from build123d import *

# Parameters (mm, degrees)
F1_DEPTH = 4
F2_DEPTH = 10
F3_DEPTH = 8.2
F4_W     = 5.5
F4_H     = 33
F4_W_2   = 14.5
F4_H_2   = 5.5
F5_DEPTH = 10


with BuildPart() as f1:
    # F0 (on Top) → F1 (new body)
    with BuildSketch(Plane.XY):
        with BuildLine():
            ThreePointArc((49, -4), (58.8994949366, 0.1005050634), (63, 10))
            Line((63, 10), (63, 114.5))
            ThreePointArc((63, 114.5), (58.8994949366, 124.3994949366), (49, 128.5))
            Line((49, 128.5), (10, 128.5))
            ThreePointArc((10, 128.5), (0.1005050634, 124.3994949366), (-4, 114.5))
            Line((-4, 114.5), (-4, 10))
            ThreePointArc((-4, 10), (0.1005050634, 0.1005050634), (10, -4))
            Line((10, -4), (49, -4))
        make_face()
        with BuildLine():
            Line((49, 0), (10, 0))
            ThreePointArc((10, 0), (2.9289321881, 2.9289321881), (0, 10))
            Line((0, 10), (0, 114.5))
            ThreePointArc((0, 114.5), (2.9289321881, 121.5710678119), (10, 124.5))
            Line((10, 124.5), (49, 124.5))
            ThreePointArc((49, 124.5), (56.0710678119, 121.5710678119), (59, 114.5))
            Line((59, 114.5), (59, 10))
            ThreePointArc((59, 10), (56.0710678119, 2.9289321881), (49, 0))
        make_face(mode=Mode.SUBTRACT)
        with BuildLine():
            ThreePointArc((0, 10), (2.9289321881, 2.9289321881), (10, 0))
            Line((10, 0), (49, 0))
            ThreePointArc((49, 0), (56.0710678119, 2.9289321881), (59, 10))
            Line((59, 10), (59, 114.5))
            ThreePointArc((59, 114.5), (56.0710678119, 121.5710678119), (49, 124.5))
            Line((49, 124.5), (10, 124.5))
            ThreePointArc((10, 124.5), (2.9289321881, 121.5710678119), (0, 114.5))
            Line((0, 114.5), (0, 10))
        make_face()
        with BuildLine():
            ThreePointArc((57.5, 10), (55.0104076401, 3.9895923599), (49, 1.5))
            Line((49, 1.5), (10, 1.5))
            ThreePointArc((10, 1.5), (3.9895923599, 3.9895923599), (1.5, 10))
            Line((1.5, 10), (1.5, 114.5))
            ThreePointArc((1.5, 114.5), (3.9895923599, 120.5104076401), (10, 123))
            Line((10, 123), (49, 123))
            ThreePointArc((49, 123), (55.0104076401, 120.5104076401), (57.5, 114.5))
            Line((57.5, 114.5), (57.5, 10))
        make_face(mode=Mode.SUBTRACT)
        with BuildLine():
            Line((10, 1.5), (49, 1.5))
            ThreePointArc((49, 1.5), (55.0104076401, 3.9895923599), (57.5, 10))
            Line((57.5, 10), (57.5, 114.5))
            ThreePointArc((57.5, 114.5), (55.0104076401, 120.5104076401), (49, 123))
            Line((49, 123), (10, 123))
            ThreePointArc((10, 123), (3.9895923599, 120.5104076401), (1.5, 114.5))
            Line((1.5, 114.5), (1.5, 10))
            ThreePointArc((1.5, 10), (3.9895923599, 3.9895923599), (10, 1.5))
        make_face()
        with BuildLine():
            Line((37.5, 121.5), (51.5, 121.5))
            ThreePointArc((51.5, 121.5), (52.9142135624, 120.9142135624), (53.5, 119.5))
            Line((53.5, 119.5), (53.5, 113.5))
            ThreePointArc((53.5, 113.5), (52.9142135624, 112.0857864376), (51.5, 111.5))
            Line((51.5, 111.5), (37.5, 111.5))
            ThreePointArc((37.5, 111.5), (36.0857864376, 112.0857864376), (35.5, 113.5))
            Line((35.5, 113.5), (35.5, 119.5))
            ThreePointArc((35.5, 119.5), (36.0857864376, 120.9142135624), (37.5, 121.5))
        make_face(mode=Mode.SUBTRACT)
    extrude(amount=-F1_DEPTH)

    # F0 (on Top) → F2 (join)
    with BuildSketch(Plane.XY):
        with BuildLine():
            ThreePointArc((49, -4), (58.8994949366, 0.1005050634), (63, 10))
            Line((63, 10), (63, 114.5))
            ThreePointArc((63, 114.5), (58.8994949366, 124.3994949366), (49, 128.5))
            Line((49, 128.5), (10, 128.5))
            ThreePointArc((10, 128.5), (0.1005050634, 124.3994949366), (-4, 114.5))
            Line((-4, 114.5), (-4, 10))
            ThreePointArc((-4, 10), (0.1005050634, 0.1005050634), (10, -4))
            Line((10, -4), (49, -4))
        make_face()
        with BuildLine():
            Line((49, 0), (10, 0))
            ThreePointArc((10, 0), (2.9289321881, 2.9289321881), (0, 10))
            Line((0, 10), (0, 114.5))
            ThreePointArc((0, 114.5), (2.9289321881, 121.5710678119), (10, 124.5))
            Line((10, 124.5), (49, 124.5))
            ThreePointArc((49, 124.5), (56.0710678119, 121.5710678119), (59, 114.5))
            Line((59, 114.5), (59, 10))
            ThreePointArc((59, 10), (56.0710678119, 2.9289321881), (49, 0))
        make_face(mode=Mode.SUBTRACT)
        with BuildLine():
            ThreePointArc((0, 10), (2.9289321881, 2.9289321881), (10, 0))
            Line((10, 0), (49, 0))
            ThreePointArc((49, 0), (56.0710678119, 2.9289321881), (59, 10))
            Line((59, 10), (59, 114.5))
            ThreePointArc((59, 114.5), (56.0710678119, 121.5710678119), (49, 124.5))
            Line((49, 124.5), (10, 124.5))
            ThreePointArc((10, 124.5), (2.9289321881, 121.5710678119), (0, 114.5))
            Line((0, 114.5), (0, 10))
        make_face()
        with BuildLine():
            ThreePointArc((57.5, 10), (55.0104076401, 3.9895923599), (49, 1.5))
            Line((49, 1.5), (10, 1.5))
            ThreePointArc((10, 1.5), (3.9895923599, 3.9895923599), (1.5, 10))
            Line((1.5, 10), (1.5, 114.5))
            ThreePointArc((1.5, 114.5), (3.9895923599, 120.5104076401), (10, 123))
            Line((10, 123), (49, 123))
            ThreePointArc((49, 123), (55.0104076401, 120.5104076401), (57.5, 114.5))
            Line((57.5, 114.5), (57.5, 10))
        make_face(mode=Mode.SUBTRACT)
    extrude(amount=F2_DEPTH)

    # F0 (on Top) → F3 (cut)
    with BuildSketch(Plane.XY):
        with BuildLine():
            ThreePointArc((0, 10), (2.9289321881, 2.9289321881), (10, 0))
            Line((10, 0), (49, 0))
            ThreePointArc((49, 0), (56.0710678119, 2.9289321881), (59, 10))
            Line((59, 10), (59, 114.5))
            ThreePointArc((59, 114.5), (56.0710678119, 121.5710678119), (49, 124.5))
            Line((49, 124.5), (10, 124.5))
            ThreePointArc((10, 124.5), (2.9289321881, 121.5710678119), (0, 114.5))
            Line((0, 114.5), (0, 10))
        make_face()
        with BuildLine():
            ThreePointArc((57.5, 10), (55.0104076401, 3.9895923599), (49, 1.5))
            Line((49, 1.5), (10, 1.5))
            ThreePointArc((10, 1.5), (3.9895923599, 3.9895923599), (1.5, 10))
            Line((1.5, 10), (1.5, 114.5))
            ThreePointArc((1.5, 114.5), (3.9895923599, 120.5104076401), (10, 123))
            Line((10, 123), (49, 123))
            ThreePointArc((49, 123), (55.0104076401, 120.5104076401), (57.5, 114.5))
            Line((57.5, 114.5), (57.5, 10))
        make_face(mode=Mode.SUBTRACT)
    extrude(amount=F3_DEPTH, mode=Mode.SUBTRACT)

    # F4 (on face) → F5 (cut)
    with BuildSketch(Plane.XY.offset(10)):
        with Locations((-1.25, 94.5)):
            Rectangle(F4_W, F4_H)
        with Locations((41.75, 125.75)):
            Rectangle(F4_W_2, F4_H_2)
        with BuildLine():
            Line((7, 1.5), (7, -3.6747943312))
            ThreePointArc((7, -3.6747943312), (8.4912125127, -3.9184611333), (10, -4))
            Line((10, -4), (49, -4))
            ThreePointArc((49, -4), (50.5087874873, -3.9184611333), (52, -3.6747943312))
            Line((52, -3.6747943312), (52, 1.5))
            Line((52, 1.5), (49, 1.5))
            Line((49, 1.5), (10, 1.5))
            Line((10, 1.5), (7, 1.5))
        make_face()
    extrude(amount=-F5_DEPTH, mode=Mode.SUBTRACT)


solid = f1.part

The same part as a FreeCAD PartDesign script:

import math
import FreeCAD as App
import Part
import Sketcher

V = App.Vector

doc = App.newDocument("Part")
params = doc.addObject("Spreadsheet::Sheet", "Params")
for row, (alias, value) in enumerate([
    ("sketch1_radius", "14 mm"),
    ("sketch1_radius2", "2 mm"),
    ("sketch1_width", "39 mm"),
    ("sketch1_width2", "14 mm"),
    ("sketch1_height", "6 mm"),
    ("pad1_length", "4 mm"),
    ("sketch2_radius", "14 mm"),
    ("sketch2_radius2", "8.5 mm"),
    ("sketch2_width", "39 mm"),
    ("sketch2_height", "104.5 mm"),
    ("pad2_length", "10 mm"),
    ("sketch3_radius", "10 mm"),
    ("sketch3_radius2", "8.5 mm"),
    ("sketch3_width", "39 mm"),
    ("sketch3_height", "104.5 mm"),
    ("pocket1_length", "8.2 mm"),
    ("sketch4_radius", "14 mm"),
    ("sketch4_width", "39 mm"),
    ("sketch4_width2", "45 mm"),
    ("sketch4_height", "33 mm"),
    ("sketch4_width3", "5.5 mm"),
    ("pocket2_length", "10 mm"),
], start=1):
    params.set(f"A{row}", alias)
    params.set(f"B{row}", "=" + value)
    params.setAlias(f"B{row}", alias)

body = doc.addObject("PartDesign::Body", "Body")

# Sketch on XY plane
sketch1 = doc.addObject("Sketcher::SketchObject", "Sketch")
body.addObject(sketch1)
sketch1.AttachmentSupport = (doc.XY_Plane, [""])
sketch1.MapMode = "FlatFace"
sketch1.addGeometry([
    Part.ArcOfCircle(Part.Circle(V(49, 10, 0), V(0, 0, 1), 14), math.radians(-90), math.radians(0)),  # 0
    Part.LineSegment(V(63, 10, 0), V(63, 114.5, 0)),  # 1
    Part.ArcOfCircle(Part.Circle(V(49, 114.5, 0), V(0, 0, 1), 14), math.radians(0), math.radians(90)),  # 2
    Part.LineSegment(V(49, 128.5, 0), V(10, 128.5, 0)),  # 3
    Part.ArcOfCircle(Part.Circle(V(10, 114.5, 0), V(0, 0, 1), 14), math.radians(90), math.radians(180)),  # 4
    Part.LineSegment(V(-4, 114.5, 0), V(-4, 10, 0)),  # 5
    Part.ArcOfCircle(Part.Circle(V(10, 10, 0), V(0, 0, 1), 14), math.radians(180), math.radians(270)),  # 6
    Part.LineSegment(V(10, -4, 0), V(49, -4, 0)),  # 7
    Part.ArcOfCircle(Part.Circle(V(37.5, 119.5, 0), V(0, 0, 1), 2), math.radians(90), math.radians(180)),  # 8
    Part.LineSegment(V(37.5, 121.5, 0), V(51.5, 121.5, 0)),  # 9
    Part.ArcOfCircle(Part.Circle(V(51.5, 119.5, 0), V(0, 0, 1), 2), math.radians(0), math.radians(90)),  # 10
    Part.LineSegment(V(53.5, 119.5, 0), V(53.5, 113.5, 0)),  # 11
    Part.ArcOfCircle(Part.Circle(V(51.5, 113.5, 0), V(0, 0, 1), 2), math.radians(-90), math.radians(0)),  # 12
    Part.LineSegment(V(51.5, 111.5, 0), V(37.5, 111.5, 0)),  # 13
    Part.ArcOfCircle(Part.Circle(V(37.5, 113.5, 0), V(0, 0, 1), 2), math.radians(180), math.radians(270)),  # 14
    Part.LineSegment(V(35.5, 113.5, 0), V(35.5, 119.5, 0)),  # 15
], False)
sketch1.addConstraint([
    Sketcher.Constraint("Tangent", 0, 2, 1, 1),
    Sketcher.Constraint("Tangent", 1, 2, 2, 1),
    Sketcher.Constraint("Tangent", 2, 2, 3, 1),
    Sketcher.Constraint("Tangent", 3, 2, 4, 1),
    Sketcher.Constraint("Tangent", 4, 2, 5, 1),
    Sketcher.Constraint("Tangent", 5, 2, 6, 1),
    Sketcher.Constraint("Tangent", 6, 2, 7, 1),
    Sketcher.Constraint("Tangent", 7, 2, 0, 1),
    Sketcher.Constraint("Tangent", 8, 1, 9, 1),
    Sketcher.Constraint("Tangent", 9, 2, 10, 2),
    Sketcher.Constraint("Tangent", 10, 1, 11, 1),
    Sketcher.Constraint("Tangent", 11, 2, 12, 2),
    Sketcher.Constraint("Tangent", 12, 1, 13, 1),
    Sketcher.Constraint("Tangent", 13, 2, 14, 2),
    Sketcher.Constraint("Tangent", 14, 1, 15, 1),
    Sketcher.Constraint("Tangent", 15, 2, 8, 2),
    Sketcher.Constraint("Vertical", 1),
    Sketcher.Constraint("Horizontal", 3),
    Sketcher.Constraint("Vertical", 5),
    Sketcher.Constraint("Horizontal", 7),
    Sketcher.Constraint("Horizontal", 9),
    Sketcher.Constraint("Vertical", 11),
    Sketcher.Constraint("Horizontal", 13),
    Sketcher.Constraint("Vertical", 15),
    Sketcher.Constraint("Equal", 0, 2),
    Sketcher.Constraint("Equal", 2, 4),
    Sketcher.Constraint("Equal", 4, 6),
    Sketcher.Constraint("Equal", 8, 10),
    Sketcher.Constraint("Equal", 10, 12),
    Sketcher.Constraint("Equal", 12, 14),
    Sketcher.Constraint("Radius", 0, 14.0),
    Sketcher.Constraint("Radius", 8, 2.0),
    Sketcher.Constraint("DistanceX", 3, 2, 3, 1, 39.0),
    Sketcher.Constraint("DistanceX", 9, 1, 9, 2, 14.0),
    Sketcher.Constraint("DistanceY", 11, 2, 11, 1, 6.0),
    Sketcher.Constraint("DistanceY", 1, 1, 1, 2, 104.5),
    Sketcher.Constraint("DistanceX", -1, 1, 0, 3, 49.0),
    Sketcher.Constraint("DistanceY", -1, 1, 0, 3, 10.0),
    Sketcher.Constraint("DistanceY", 2, 3, 8, 3, 5.0),
    Sketcher.Constraint("DistanceX", -1, 1, 8, 3, 37.5),
])
sketch1.setExpression("Constraints[30]", "Params.sketch1_radius")
sketch1.setExpression("Constraints[31]", "Params.sketch1_radius2")
sketch1.setExpression("Constraints[32]", "Params.sketch1_width")
sketch1.setExpression("Constraints[33]", "Params.sketch1_width2")
sketch1.setExpression("Constraints[34]", "Params.sketch1_height")
pad1 = doc.addObject("PartDesign::Pad", "Pad")
body.addObject(pad1)
pad1.Profile = sketch1
pad1.setExpression("Length", "Params.pad1_length")
pad1.Reversed = True

# Sketch on XY plane
sketch2 = doc.addObject("Sketcher::SketchObject", "Sketch001")
body.addObject(sketch2)
sketch2.AttachmentSupport = (doc.XY_Plane, [""])
sketch2.MapMode = "FlatFace"
sketch2.addGeometry([
    Part.ArcOfCircle(Part.Circle(V(49, 10, 0), V(0, 0, 1), 14), math.radians(-90), math.radians(0)),  # 0
    Part.LineSegment(V(63, 10, 0), V(63, 114, 0)),  # 1
    Part.ArcOfCircle(Part.Circle(V(49, 114, 0), V(0, 0, 1), 14), math.radians(0), math.radians(90)),  # 2
    Part.LineSegment(V(49, 128, 0), V(10, 128, 0)),  # 3
    Part.ArcOfCircle(Part.Circle(V(10, 114, 0), V(0, 0, 1), 14), math.radians(90), math.radians(180)),  # 4
    Part.LineSegment(V(-4, 114, 0), V(-4, 10, 0)),  # 5
    Part.ArcOfCircle(Part.Circle(V(10, 10, 0), V(0, 0, 1), 14), math.radians(180), math.radians(270)),  # 6
    Part.LineSegment(V(10, -4, 0), V(49, -4, 0)),  # 7
    Part.LineSegment(V(58, 114, 0), V(58, 10, 0)),  # 8
    Part.ArcOfCircle(Part.Circle(V(49, 10, 0), V(0, 0, 1), 8), math.radians(-90), math.radians(0)),  # 9
    Part.LineSegment(V(49, 2, 0), V(10, 2, 0)),  # 10
    Part.ArcOfCircle(Part.Circle(V(10, 10, 0), V(0, 0, 1), 8), math.radians(180), math.radians(270)),  # 11
    Part.LineSegment(V(2, 10, 0), V(2, 114, 0)),  # 12
    Part.ArcOfCircle(Part.Circle(V(10, 114, 0), V(0, 0, 1), 8), math.radians(90), math.radians(180)),  # 13
    Part.LineSegment(V(10, 123, 0), V(49, 123, 0)),  # 14
    Part.ArcOfCircle(Part.Circle(V(49, 114, 0), V(0, 0, 1), 8), math.radians(0), math.radians(90)),  # 15
], False)
sketch2.addConstraint([
    Sketcher.Constraint("Tangent", 0, 2, 1, 1),
    Sketcher.Constraint("Tangent", 1, 2, 2, 1),
    Sketcher.Constraint("Tangent", 2, 2, 3, 1),
    Sketcher.Constraint("Tangent", 3, 2, 4, 1),
    Sketcher.Constraint("Tangent", 4, 2, 5, 1),
    Sketcher.Constraint("Tangent", 5, 2, 6, 1),
    Sketcher.Constraint("Tangent", 6, 2, 7, 1),
    Sketcher.Constraint("Tangent", 7, 2, 0, 1),
    Sketcher.Constraint("Tangent", 8, 2, 9, 2),
    Sketcher.Constraint("Tangent", 9, 1, 10, 1),
    Sketcher.Constraint("Tangent", 10, 2, 11, 2),
    Sketcher.Constraint("Tangent", 11, 1, 12, 1),
    Sketcher.Constraint("Tangent", 12, 2, 13, 2),
    Sketcher.Constraint("Tangent", 13, 1, 14, 1),
    Sketcher.Constraint("Tangent", 14, 2, 15, 2),
    Sketcher.Constraint("Tangent", 15, 1, 8, 1),
    Sketcher.Constraint("Vertical", 1),
    Sketcher.Constraint("Horizontal", 3),
    Sketcher.Constraint("Vertical", 5),
    Sketcher.Constraint("Horizontal", 7),
    Sketcher.Constraint("Vertical", 8),
    Sketcher.Constraint("Horizontal", 10),
    Sketcher.Constraint("Vertical", 12),
    Sketcher.Constraint("Horizontal", 14),
    Sketcher.Constraint("Coincident", 9, 3, 0, 3),
    Sketcher.Constraint("Coincident", 11, 3, 6, 3),
    Sketcher.Constraint("Coincident", 13, 3, 4, 3),
    Sketcher.Constraint("Equal", 0, 2),
    Sketcher.Constraint("Equal", 2, 4),
    Sketcher.Constraint("Equal", 4, 6),
    Sketcher.Constraint("Equal", 13, 15),
    Sketcher.Constraint("Radius", 0, 14.0),
    Sketcher.Constraint("Radius", 9, 8.5),
    Sketcher.Constraint("DistanceX", 3, 2, 3, 1, 39.0),
    Sketcher.Constraint("DistanceY", 1, 1, 1, 2, 104.5),
    Sketcher.Constraint("DistanceX", -1, 1, 0, 3, 49.0),
    Sketcher.Constraint("DistanceY", -1, 1, 0, 3, 10.0),
])
sketch2.setExpression("Constraints[31]", "Params.sketch2_radius")
sketch2.setExpression("Constraints[32]", "Params.sketch2_radius2")
sketch2.setExpression("Constraints[33]", "Params.sketch2_width")
sketch2.setExpression("Constraints[34]", "Params.sketch2_height")
pad2 = doc.addObject("PartDesign::Pad", "Pad001")
body.addObject(pad2)
pad2.Profile = sketch2
pad2.setExpression("Length", "Params.pad2_length")

# Sketch on XY plane
sketch3 = doc.addObject("Sketcher::SketchObject", "Sketch002")
body.addObject(sketch3)
sketch3.AttachmentSupport = (doc.XY_Plane, [""])
sketch3.MapMode = "FlatFace"
sketch3.addGeometry([
    Part.ArcOfCircle(Part.Circle(V(10, 10, 0), V(0, 0, 1), 10), math.radians(180), math.radians(270)),  # 0
    Part.LineSegment(V(10, 0, 0), V(49, 0, 0)),  # 1
    Part.ArcOfCircle(Part.Circle(V(49, 10, 0), V(0, 0, 1), 10), math.radians(-90), math.radians(0)),  # 2
    Part.LineSegment(V(59, 10, 0), V(59, 114, 0)),  # 3
    Part.ArcOfCircle(Part.Circle(V(49, 114, 0), V(0, 0, 1), 10), math.radians(0), math.radians(90)),  # 4
    Part.LineSegment(V(49, 124, 0), V(10, 124, 0)),  # 5
    Part.ArcOfCircle(Part.Circle(V(10, 114, 0), V(0, 0, 1), 10), math.radians(90), math.radians(180)),  # 6
    Part.LineSegment(V(0, 114, 0), V(0, 10, 0)),  # 7
    Part.LineSegment(V(58, 114, 0), V(58, 10, 0)),  # 8
    Part.ArcOfCircle(Part.Circle(V(49, 10, 0), V(0, 0, 1), 8), math.radians(-90), math.radians(0)),  # 9
    Part.LineSegment(V(49, 2, 0), V(10, 2, 0)),  # 10
    Part.ArcOfCircle(Part.Circle(V(10, 10, 0), V(0, 0, 1), 8), math.radians(180), math.radians(270)),  # 11
    Part.LineSegment(V(2, 10, 0), V(2, 114, 0)),  # 12
    Part.ArcOfCircle(Part.Circle(V(10, 114, 0), V(0, 0, 1), 8), math.radians(90), math.radians(180)),  # 13
    Part.LineSegment(V(10, 123, 0), V(49, 123, 0)),  # 14
    Part.ArcOfCircle(Part.Circle(V(49, 114, 0), V(0, 0, 1), 8), math.radians(0), math.radians(90)),  # 15
], False)
sketch3.addConstraint([
    Sketcher.Constraint("Tangent", 0, 2, 1, 1),
    Sketcher.Constraint("Tangent", 1, 2, 2, 1),
    Sketcher.Constraint("Tangent", 2, 2, 3, 1),
    Sketcher.Constraint("Tangent", 3, 2, 4, 1),
    Sketcher.Constraint("Tangent", 4, 2, 5, 1),
    Sketcher.Constraint("Tangent", 5, 2, 6, 1),
    Sketcher.Constraint("Tangent", 6, 2, 7, 1),
    Sketcher.Constraint("Tangent", 7, 2, 0, 1),
    Sketcher.Constraint("Tangent", 8, 2, 9, 2),
    Sketcher.Constraint("Tangent", 9, 1, 10, 1),
    Sketcher.Constraint("Tangent", 10, 2, 11, 2),
    Sketcher.Constraint("Tangent", 11, 1, 12, 1),
    Sketcher.Constraint("Tangent", 12, 2, 13, 2),
    Sketcher.Constraint("Tangent", 13, 1, 14, 1),
    Sketcher.Constraint("Tangent", 14, 2, 15, 2),
    Sketcher.Constraint("Tangent", 15, 1, 8, 1),
    Sketcher.Constraint("Horizontal", 1),
    Sketcher.Constraint("Vertical", 3),
    Sketcher.Constraint("Horizontal", 5),
    Sketcher.Constraint("Vertical", 7),
    Sketcher.Constraint("Vertical", 8),
    Sketcher.Constraint("Horizontal", 10),
    Sketcher.Constraint("Vertical", 12),
    Sketcher.Constraint("Horizontal", 14),
    Sketcher.Constraint("Coincident", 9, 3, 2, 3),
    Sketcher.Constraint("Coincident", 11, 3, 0, 3),
    Sketcher.Constraint("Coincident", 13, 3, 6, 3),
    Sketcher.Constraint("Equal", 0, 2),
    Sketcher.Constraint("Equal", 2, 4),
    Sketcher.Constraint("Equal", 4, 6),
    Sketcher.Constraint("Equal", 13, 15),
    Sketcher.Constraint("PointOnObject", 0, 2, -1),
    Sketcher.Constraint("PointOnObject", 6, 2, -2),
    Sketcher.Constraint("Radius", 0, 10.0),
    Sketcher.Constraint("Radius", 9, 8.5),
    Sketcher.Constraint("DistanceX", 1, 1, 1, 2, 39.0),
    Sketcher.Constraint("DistanceY", 3, 1, 3, 2, 104.5),
])
sketch3.setExpression("Constraints[33]", "Params.sketch3_radius")
sketch3.setExpression("Constraints[34]", "Params.sketch3_radius2")
sketch3.setExpression("Constraints[35]", "Params.sketch3_width")
sketch3.setExpression("Constraints[36]", "Params.sketch3_height")
pocket1 = doc.addObject("PartDesign::Pocket", "Pocket")
body.addObject(pocket1)
pocket1.Profile = sketch3
pocket1.setExpression("Length", "Params.pocket1_length")
pocket1.Reversed = True

# Sketch on XY plane
sketch4 = doc.addObject("Sketcher::SketchObject", "Sketch003")
body.addObject(sketch4)
sketch4.AttachmentSupport = (doc.XY_Plane, [""])
sketch4.MapMode = "FlatFace"
sketch4.AttachmentOffset = App.Placement(V(0, 0, 10), App.Rotation())
sketch4.addGeometry([
    Part.LineSegment(V(-4, 111, 0), V(-4, 78, 0)),  # 0
    Part.LineSegment(V(-4, 78, 0), V(1.5, 78, 0)),  # 1
    Part.LineSegment(V(1.5, 78, 0), V(1.5, 111, 0)),  # 2
    Part.LineSegment(V(1.5, 111, 0), V(-4, 111, 0)),  # 3
    Part.LineSegment(V(34.5, 128.5, 0), V(34.5, 123, 0)),  # 4
    Part.LineSegment(V(34.5, 123, 0), V(49, 123, 0)),  # 5
    Part.LineSegment(V(49, 123, 0), V(49, 128.5, 0)),  # 6
    Part.LineSegment(V(49, 128.5, 0), V(34.5, 128.5, 0)),  # 7
    Part.LineSegment(V(7, 1.5, 0), V(7, -3.7, 0)),  # 8
    Part.ArcOfCircle(Part.Circle(V(10, 10, 0), V(0, 0, 1), 14), math.radians(-102.37), math.radians(-90)),  # 9
    Part.LineSegment(V(10, -4, 0), V(49, -4, 0)),  # 10
    Part.ArcOfCircle(Part.Circle(V(49, 10, 0), V(0, 0, 1), 14), math.radians(-90), math.radians(-77.63)),  # 11
    Part.LineSegment(V(52, -3.7, 0), V(52, 1.5, 0)),  # 12
    Part.LineSegment(V(52, 1.5, 0), V(7, 1.5, 0)),  # 13
], False)
sketch4.addConstraint([
    Sketcher.Constraint("Coincident", 0, 2, 1, 1),
    Sketcher.Constraint("Coincident", 1, 2, 2, 1),
    Sketcher.Constraint("Coincident", 2, 2, 3, 1),
    Sketcher.Constraint("Coincident", 3, 2, 0, 1),
    Sketcher.Constraint("Coincident", 4, 2, 5, 1),
    Sketcher.Constraint("Coincident", 5, 2, 6, 1),
    Sketcher.Constraint("Coincident", 6, 2, 7, 1),
    Sketcher.Constraint("Coincident", 7, 2, 4, 1),
    Sketcher.Constraint("Coincident", 8, 2, 9, 1),
    Sketcher.Constraint("Tangent", 9, 2, 10, 1),
    Sketcher.Constraint("Tangent", 10, 2, 11, 1),
    Sketcher.Constraint("Coincident", 11, 2, 12, 1),
    Sketcher.Constraint("Coincident", 12, 2, 13, 1),
    Sketcher.Constraint("Coincident", 13, 2, 8, 1),
    Sketcher.Constraint("Vertical", 0),
    Sketcher.Constraint("Horizontal", 1),
    Sketcher.Constraint("Vertical", 2),
    Sketcher.Constraint("Horizontal", 3),
    Sketcher.Constraint("Vertical", 4),
    Sketcher.Constraint("Horizontal", 5),
    Sketcher.Constraint("Vertical", 6),
    Sketcher.Constraint("Horizontal", 7),
    Sketcher.Constraint("Vertical", 8),
    Sketcher.Constraint("Horizontal", 10),
    Sketcher.Constraint("Vertical", 12),
    Sketcher.Constraint("Horizontal", 13),
    Sketcher.Constraint("Equal", 9, 11),
    Sketcher.Constraint("Horizontal", 8, 2, 11, 2),
    Sketcher.Constraint("Vertical", 11, 3, 5, 2),
    Sketcher.Constraint("Equal", 3, 4),
    Sketcher.Constraint("Radius", 9, 14.0),
    Sketcher.Constraint("DistanceX", 10, 1, 10, 2, 39.0),
    Sketcher.Constraint("DistanceX", 13, 2, 13, 1, 45.0),
    Sketcher.Constraint("DistanceY", 0, 2, 0, 1, 33.0),
    Sketcher.Constraint("DistanceX", 1, 1, 1, 2, 5.5),
    Sketcher.Constraint("DistanceX", 5, 1, 5, 2, 14.5),
    Sketcher.Constraint("DistanceX", -1, 1, 9, 3, 10.0),
    Sketcher.Constraint("DistanceY", -1, 1, 9, 3, 10.0),
    Sketcher.Constraint("DistanceX", 0, 2, -1, 1, 4.0),
    Sketcher.Constraint("DistanceY", -1, 1, 0, 2, 78.0),
    Sketcher.Constraint("DistanceY", -1, 1, 4, 2, 123.0),
    Sketcher.Constraint("DistanceY", -1, 1, 12, 2, 1.5),
])
sketch4.setExpression("Constraints[30]", "Params.sketch4_radius")
sketch4.setExpression("Constraints[31]", "Params.sketch4_width")
sketch4.setExpression("Constraints[32]", "Params.sketch4_width2")
sketch4.setExpression("Constraints[33]", "Params.sketch4_height")
sketch4.setExpression("Constraints[34]", "Params.sketch4_width3")
pocket2 = doc.addObject("PartDesign::Pocket", "Pocket001")
body.addObject(pocket2)
pocket2.Profile = sketch4
pocket2.setExpression("Length", "Params.pocket2_length")

doc.recompute()
